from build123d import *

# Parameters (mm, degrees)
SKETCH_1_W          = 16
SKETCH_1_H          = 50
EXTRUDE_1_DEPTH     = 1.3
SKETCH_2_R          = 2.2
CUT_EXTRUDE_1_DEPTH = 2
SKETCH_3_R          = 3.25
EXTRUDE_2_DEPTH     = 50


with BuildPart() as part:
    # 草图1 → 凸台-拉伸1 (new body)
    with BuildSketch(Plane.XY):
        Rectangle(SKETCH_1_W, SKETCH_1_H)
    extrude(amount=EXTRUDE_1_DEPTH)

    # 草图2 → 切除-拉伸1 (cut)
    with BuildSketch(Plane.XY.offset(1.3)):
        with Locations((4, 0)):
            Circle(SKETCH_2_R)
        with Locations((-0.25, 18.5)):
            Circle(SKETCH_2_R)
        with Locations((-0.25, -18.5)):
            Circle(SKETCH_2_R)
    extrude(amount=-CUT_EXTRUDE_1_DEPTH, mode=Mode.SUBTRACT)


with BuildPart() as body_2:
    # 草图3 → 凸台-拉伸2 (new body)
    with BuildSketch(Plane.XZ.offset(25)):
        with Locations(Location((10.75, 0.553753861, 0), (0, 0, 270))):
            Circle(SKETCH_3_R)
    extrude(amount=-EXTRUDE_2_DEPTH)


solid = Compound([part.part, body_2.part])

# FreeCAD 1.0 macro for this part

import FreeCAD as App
import Part
import Sketcher
Q = App.Units.Quantity


def add_polygon(sketch, points):
    """Adds a closed chain of lines whose ends are joined by coincident constraints."""
    first, n = sketch.GeometryCount, len(points)
    for a, b in zip(points, points[1:] + points[:1]):
        sketch.addGeometry(Part.LineSegment(App.Vector(*a, 0), App.Vector(*b, 0)), False)
    for i in range(n):
        sketch.addConstraint(Sketcher.Constraint("Coincident", first + i, 2, first + (i + 1) % n, 1))

doc = App.newDocument("Part")
params = doc.addObject("Spreadsheet::Sheet", "Params")
for row, (alias, value) in enumerate([
    ("sketch1_width", "16 mm"),
    ("sketch1_height", "50 mm"),
    ("pad1_length", "1.3 mm"),
    ("sketch2_diameter", "4.4 mm"),
    ("pocket1_length", "2 mm"),
    ("sketch3_diameter", "6.5 mm"),
    ("pad2_length", "50 mm"),
], start=1):
    params.set(f"A{row}", alias)
    params.set(f"B{row}", "=" + value)
    params.setAlias(f"B{row}", alias)

body = doc.addObject("PartDesign::Body", "Body")

sketch1 = body.newObject("Sketcher::SketchObject", "Sketch")
sketch1.AttachmentSupport = (doc.getObject("XY_Plane"), [""])
sketch1.MapMode = "FlatFace"
add_polygon(sketch1, [(-8, 25), (-8, -25), (8, -25), (8, 25)])
sketch1.addConstraint([
    Sketcher.Constraint("Vertical", 0),
    Sketcher.Constraint("Horizontal", 1),
    Sketcher.Constraint("Vertical", 2),
    Sketcher.Constraint("Horizontal", 3),
    Sketcher.Constraint("Symmetric", 0, 2, 2, 2, -1, 1),
    Sketcher.Constraint("DistanceX", 1, 1, 1, 2, Q("16 mm")),
    Sketcher.Constraint("DistanceY", 0, 2, 0, 1, Q("50 mm")),
])
sketch1.setExpression("Constraints[9]", "Params.sketch1_width")
sketch1.setExpression("Constraints[10]", "Params.sketch1_height")
pad1 = body.newObject("PartDesign::Pad", "Pad")
pad1.Profile = sketch1
pad1.setExpression("Length", "Params.pad1_length")

sketch2 = body.newObject("Sketcher::SketchObject", "Sketch001")
sketch2.AttachmentSupport = (doc.getObject("XY_Plane"), [""])
sketch2.MapMode = "FlatFace"
sketch2.AttachmentOffset = App.Placement(App.Vector(0, 0, 1.3), App.Rotation())
sketch2.addGeometry([
    Part.Circle(App.Vector(4, 0, 0), App.Vector(0, 0, 1), 2.2),
    Part.Circle(App.Vector(-0.2, 18.5, 0), App.Vector(0, 0, 1), 2.2),
    Part.Circle(App.Vector(-0.2, -18.5, 0), App.Vector(0, 0, 1), 2.2),
], False)
sketch2.addConstraint([
    Sketcher.Constraint("Equal", 0, 1),
    Sketcher.Constraint("Equal", 1, 2),
    Sketcher.Constraint("Symmetric", 1, 3, 2, 3, -1),
    Sketcher.Constraint("PointOnObject", 0, 3, -1),
    Sketcher.Constraint("Diameter", 0, Q("4.4 mm")),
    Sketcher.Constraint("DistanceX", -1, 1, 0, 3, Q("4 mm")),
    Sketcher.Constraint("DistanceY", 2, 3, 1, 3, Q("37 mm")),
    Sketcher.Constraint("DistanceX", 1, 3, -1, 1, Q("0.25 mm")),
])
sketch2.setExpression("Constraints[4]", "Params.sketch2_diameter")
pocket1 = body.newObject("PartDesign::Pocket", "Pocket")
pocket1.Profile = sketch2
pocket1.setExpression("Length", "Params.pocket1_length")
body2 = doc.addObject("PartDesign::Body", "Body001")

sketch3 = body2.newObject("Sketcher::SketchObject", "Sketch002")
sketch3.AttachmentSupport = (doc.getObject("XZ_Plane001"), [""])
sketch3.MapMode = "FlatFace"
sketch3.AttachmentOffset = App.Placement(App.Vector(0, 0, 25), App.Rotation())
sketch3.addGeometry(Part.Circle(App.Vector(10.8, 0.6, 0), App.Vector(0, 0, 1), 3.2), False)
sketch3.addConstraint([
    Sketcher.Constraint("Diameter", 0, Q("6.5 mm")),
    Sketcher.Constraint("DistanceX", -1, 1, 0, 3, Q("10.75 mm")),
    Sketcher.Constraint("DistanceY", -1, 1, 0, 3, Q("0.553754 mm")),
])
sketch3.setExpression("Constraints[0]", "Params.sketch3_diameter")
pad2 = body2.newObject("PartDesign::Pad", "Pad001")
pad2.Profile = sketch3
pad2.setExpression("Length", "Params.pad2_length")
pad2.Reversed = True

doc.recompute()
